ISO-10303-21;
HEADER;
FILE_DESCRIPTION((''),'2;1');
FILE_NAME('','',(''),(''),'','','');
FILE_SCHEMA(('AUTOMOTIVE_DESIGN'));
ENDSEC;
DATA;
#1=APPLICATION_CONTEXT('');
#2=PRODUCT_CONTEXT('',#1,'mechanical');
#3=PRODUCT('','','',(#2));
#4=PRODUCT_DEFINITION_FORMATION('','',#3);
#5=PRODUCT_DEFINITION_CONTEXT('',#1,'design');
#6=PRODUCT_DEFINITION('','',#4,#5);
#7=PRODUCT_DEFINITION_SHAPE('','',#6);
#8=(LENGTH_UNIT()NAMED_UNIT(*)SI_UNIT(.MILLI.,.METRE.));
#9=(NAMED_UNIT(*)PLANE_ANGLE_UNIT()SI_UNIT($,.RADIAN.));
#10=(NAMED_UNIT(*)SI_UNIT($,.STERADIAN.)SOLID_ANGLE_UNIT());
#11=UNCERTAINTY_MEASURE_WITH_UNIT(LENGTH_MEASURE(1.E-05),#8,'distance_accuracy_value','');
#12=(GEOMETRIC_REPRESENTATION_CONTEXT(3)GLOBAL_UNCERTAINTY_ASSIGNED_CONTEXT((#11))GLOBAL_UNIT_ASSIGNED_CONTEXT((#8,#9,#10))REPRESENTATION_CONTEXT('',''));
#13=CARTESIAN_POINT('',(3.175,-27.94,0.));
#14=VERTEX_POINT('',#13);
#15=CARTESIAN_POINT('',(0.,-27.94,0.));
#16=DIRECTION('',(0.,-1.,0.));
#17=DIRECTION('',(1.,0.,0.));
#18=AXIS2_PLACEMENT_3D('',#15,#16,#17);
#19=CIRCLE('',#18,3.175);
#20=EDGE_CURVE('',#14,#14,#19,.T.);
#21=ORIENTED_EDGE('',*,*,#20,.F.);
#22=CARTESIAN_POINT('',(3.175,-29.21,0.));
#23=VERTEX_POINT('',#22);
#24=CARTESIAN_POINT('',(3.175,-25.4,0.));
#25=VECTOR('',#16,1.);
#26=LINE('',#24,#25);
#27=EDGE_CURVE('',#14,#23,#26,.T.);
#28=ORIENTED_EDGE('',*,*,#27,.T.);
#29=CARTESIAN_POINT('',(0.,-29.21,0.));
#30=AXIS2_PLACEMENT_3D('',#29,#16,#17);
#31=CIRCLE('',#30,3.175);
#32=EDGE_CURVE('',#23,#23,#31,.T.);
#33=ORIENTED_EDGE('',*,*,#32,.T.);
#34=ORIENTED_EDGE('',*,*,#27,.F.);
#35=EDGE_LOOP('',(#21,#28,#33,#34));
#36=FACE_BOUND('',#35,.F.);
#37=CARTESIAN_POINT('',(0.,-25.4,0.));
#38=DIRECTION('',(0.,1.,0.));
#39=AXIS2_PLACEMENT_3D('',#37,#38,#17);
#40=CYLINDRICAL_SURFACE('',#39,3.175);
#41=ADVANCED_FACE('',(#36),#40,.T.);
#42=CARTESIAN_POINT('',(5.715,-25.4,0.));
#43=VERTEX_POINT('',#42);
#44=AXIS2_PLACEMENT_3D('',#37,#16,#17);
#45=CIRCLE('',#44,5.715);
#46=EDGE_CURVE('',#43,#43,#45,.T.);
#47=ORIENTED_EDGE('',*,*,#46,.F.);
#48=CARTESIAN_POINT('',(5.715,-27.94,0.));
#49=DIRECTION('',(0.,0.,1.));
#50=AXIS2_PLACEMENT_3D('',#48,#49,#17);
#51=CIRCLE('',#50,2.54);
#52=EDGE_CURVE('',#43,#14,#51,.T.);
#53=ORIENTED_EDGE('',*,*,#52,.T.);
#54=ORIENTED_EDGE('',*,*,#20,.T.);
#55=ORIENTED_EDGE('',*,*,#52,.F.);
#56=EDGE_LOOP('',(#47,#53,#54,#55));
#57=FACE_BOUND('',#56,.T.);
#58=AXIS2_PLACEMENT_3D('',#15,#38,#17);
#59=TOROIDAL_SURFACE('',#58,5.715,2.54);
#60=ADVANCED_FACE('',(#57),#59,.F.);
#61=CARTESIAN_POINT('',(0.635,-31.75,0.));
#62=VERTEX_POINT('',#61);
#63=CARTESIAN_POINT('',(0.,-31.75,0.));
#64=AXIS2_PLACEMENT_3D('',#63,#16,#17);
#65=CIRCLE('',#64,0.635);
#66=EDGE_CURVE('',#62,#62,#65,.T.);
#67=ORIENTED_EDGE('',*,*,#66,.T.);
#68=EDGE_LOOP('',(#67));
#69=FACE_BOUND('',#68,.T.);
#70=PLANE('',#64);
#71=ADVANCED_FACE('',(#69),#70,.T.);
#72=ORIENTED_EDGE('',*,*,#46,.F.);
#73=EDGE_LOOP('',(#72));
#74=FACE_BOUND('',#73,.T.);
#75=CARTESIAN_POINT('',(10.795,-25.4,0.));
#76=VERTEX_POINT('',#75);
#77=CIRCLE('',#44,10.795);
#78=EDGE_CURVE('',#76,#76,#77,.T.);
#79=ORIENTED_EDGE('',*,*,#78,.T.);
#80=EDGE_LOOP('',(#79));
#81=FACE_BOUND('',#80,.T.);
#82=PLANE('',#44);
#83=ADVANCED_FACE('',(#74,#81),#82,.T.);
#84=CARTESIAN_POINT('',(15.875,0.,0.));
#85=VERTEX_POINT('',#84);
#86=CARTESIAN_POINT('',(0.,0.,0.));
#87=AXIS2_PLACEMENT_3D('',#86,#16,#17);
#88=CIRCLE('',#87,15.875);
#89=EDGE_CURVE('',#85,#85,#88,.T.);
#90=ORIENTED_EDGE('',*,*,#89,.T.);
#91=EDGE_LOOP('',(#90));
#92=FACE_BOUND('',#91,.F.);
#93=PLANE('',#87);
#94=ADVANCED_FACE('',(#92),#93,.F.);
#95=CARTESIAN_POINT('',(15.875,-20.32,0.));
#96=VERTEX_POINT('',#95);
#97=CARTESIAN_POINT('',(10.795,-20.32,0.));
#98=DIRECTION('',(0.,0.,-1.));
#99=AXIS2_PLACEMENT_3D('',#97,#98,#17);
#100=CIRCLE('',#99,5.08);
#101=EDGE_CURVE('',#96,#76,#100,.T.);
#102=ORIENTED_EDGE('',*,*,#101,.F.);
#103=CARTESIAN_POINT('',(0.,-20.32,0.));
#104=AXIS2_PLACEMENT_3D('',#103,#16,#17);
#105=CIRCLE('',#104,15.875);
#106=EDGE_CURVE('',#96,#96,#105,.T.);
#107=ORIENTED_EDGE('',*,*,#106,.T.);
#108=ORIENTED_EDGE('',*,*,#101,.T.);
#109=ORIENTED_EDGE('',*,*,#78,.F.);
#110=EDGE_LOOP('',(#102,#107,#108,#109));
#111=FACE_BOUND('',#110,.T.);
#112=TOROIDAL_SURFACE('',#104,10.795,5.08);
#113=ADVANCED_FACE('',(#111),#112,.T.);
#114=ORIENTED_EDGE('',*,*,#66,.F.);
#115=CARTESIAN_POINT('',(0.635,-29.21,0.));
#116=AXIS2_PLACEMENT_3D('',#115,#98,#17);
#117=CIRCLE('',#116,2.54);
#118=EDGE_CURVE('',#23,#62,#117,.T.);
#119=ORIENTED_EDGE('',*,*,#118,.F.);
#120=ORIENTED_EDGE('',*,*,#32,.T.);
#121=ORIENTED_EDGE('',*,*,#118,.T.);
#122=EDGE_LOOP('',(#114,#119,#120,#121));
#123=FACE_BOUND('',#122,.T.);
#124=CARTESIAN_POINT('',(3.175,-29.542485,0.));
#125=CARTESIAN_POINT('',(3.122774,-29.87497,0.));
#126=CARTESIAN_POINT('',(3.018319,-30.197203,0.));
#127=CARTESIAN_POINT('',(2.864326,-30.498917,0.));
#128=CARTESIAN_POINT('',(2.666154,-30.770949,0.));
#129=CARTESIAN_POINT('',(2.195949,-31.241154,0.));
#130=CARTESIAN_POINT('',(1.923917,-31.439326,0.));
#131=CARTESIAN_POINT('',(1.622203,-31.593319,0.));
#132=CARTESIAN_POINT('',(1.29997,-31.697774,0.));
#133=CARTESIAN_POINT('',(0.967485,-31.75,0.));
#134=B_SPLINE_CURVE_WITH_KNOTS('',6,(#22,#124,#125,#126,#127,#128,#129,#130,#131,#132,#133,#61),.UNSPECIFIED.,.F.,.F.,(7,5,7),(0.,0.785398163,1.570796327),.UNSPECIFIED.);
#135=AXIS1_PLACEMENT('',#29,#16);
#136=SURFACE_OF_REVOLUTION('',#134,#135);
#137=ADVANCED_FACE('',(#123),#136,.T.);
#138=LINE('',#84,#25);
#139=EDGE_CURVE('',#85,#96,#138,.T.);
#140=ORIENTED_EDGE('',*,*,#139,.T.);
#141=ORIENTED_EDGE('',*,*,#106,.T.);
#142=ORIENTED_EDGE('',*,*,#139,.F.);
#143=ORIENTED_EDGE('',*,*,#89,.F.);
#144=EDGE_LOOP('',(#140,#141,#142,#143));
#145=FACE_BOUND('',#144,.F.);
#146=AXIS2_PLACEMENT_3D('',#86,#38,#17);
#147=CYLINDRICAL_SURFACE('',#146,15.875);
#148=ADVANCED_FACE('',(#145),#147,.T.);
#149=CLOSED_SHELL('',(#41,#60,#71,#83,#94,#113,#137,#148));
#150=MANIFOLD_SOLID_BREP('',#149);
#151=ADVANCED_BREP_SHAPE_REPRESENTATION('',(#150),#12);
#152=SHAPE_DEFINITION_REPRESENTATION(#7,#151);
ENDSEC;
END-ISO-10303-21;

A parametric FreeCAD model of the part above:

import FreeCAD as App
import Part
import Sketcher
from FreeCAD import Vector
Q = App.Units.Quantity


def edges_at(feature, points):
    """Names of the edges that pass closest to the given points."""
    edges = feature.Shape.Edges
    near = lambda p: min(range(len(edges)), key=lambda i: edges[i].distToShape(Part.Vertex(*p))[0])
    return sorted({f"Edge{near(p) + 1}" for p in points})

doc = App.newDocument("Part")
body = doc.addObject("PartDesign::Body", "Body")

sketch1 = doc.addObject("Sketcher::SketchObject", "Sketch")
body.addObject(sketch1)
sketch1.AttachmentSupport = (doc.XZ_Plane, [""])
sketch1.MapMode = "FlatFace"
sketch1.addGeometry(Part.Circle(Vector(0, 0, 0), Vector(0, 0, 1), 15.875), False)
sketch1.addConstraint(Sketcher.Constraint("Coincident", 0, 3, -1, 1))
sketch1.addConstraint(Sketcher.Constraint("Diameter", 0, Q("1.25 in")))
pad1 = doc.addObject("PartDesign::Pad", "Pad")
body.addObject(pad1)
pad1.Profile = sketch1
pad1.Length = Q("1 in")
doc.recompute()

fillet = doc.addObject("PartDesign::Fillet", "Fillet")
body.addObject(fillet)
fillet.Base = (pad1, edges_at(pad1, [(-15.875, -25.4, 0)]))
fillet.Radius = Q("0.2 in")

sketch2 = doc.addObject("Sketcher::SketchObject", "Sketch001")
body.addObject(sketch2)
sketch2.AttachmentSupport = (doc.XZ_Plane, [""])
sketch2.MapMode = "FlatFace"
sketch2.AttachmentOffset = App.Placement(Vector(0, 0, 1 * 25.4), App.Rotation())
sketch2.addGeometry(Part.Circle(Vector(0, 0, 0), Vector(0, 0, 1), 3.175), False)
sketch2.addConstraint(Sketcher.Constraint("Coincident", 0, 3, -1, 1))
sketch2.addConstraint(Sketcher.Constraint("Diameter", 0, Q("0.25 in")))
pad2 = doc.addObject("PartDesign::Pad", "Pad001")
body.addObject(pad2)
pad2.Profile = sketch2
pad2.Length = Q("0.25 in")
doc.recompute()

fillet2 = doc.addObject("PartDesign::Fillet", "Fillet001")
body.addObject(fillet2)
fillet2.Base = (pad2, edges_at(pad2, [(-3.175, -31.75, 0), (-3.175, -25.4, 0)]))
fillet2.Radius = Q("0.1 in")

doc.recompute()
